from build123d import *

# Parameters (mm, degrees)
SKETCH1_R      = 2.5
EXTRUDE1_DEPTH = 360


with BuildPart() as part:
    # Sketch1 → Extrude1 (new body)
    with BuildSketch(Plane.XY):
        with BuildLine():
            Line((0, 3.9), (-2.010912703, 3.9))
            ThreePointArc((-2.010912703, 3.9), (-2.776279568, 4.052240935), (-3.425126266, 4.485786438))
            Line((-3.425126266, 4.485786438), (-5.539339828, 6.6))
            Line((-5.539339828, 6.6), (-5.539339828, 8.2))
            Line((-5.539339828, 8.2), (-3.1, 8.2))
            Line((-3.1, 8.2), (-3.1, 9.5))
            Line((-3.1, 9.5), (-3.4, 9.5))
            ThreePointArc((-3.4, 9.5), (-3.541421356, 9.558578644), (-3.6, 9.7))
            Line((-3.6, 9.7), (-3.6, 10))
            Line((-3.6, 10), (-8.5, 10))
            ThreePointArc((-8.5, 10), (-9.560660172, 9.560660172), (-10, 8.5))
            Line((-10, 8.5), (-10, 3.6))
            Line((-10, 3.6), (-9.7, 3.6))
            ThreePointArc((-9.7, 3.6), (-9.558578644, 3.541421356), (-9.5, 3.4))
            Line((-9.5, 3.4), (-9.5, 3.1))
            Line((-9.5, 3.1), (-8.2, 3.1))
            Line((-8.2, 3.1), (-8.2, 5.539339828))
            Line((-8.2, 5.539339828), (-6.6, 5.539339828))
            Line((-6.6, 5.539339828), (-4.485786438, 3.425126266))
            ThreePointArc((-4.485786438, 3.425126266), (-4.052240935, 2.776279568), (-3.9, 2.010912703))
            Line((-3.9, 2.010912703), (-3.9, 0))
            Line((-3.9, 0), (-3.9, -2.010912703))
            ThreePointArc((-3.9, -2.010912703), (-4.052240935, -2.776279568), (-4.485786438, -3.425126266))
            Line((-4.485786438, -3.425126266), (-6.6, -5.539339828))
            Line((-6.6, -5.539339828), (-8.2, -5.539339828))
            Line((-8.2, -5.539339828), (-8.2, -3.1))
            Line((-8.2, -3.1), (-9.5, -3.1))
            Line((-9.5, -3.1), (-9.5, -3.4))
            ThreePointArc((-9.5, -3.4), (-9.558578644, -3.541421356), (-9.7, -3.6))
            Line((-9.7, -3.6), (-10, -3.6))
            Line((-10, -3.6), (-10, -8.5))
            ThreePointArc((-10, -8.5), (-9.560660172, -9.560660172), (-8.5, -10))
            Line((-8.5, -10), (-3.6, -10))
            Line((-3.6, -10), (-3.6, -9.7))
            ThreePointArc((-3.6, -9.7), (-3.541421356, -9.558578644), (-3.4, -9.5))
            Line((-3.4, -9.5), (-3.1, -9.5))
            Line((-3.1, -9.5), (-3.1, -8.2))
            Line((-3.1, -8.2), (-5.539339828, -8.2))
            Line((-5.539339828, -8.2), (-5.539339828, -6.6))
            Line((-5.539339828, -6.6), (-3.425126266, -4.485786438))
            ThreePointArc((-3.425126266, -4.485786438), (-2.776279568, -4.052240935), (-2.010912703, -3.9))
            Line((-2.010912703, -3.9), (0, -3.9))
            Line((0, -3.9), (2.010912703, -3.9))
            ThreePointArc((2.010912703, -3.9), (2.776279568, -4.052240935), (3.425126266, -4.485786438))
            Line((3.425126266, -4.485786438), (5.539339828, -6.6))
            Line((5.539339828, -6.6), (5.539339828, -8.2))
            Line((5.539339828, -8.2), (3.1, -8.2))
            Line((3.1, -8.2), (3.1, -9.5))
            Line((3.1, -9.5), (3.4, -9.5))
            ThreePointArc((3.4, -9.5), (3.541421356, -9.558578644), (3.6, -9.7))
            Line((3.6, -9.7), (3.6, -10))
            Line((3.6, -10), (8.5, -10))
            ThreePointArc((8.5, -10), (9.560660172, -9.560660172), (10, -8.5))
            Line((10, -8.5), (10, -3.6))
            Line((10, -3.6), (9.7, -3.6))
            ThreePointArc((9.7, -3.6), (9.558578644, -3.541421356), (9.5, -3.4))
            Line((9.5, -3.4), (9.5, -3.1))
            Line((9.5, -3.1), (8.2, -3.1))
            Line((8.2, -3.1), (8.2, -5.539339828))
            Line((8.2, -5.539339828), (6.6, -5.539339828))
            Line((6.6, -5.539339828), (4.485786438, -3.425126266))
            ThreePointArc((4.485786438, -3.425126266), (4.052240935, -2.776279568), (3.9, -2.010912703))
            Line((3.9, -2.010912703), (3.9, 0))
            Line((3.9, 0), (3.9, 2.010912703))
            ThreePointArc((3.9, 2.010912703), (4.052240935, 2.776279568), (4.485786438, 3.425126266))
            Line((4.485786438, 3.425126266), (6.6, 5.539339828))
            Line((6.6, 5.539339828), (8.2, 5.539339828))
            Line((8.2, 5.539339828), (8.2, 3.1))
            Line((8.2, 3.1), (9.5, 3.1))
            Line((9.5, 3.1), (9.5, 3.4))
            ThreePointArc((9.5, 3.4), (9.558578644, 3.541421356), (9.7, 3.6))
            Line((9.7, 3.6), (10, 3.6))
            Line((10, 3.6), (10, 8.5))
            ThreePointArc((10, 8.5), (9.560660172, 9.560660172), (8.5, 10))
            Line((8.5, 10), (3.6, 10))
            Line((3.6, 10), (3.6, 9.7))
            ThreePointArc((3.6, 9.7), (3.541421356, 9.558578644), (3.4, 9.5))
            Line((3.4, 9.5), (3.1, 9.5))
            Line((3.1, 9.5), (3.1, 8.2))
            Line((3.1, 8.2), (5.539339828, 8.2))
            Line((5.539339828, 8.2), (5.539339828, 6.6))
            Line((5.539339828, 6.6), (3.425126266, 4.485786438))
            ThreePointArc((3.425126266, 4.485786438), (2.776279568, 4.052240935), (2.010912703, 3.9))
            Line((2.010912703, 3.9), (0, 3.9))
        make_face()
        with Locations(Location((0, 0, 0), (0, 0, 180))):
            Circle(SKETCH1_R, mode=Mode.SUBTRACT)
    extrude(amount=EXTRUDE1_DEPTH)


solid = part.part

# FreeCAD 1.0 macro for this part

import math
import FreeCAD as App
import Part
import Sketcher

V = App.Vector

doc = App.newDocument("Part")
body = doc.addObject("PartDesign::Body", "Body")

sketch1 = doc.addObject("Sketcher::SketchObject", "Sketch")
body.addObject(sketch1)
sketch1.AttachmentSupport = (doc.XY_Plane, [""])
sketch1.MapMode = "FlatFace"
sketch1.addGeometry([
    Part.ArcOfCircle(Part.Circle(V(-2.010913, 5.9, 0), V(0, 0, 1), 2), math.radians(-135), math.radians(-90)),
    Part.LineSegment(V(-3.425126, 4.485786, 0), V(-5.53934, 6.6, 0)),
    Part.LineSegment(V(-5.53934, 6.6, 0), V(-5.53934, 8.2, 0)),
    Part.LineSegment(V(-5.53934, 8.2, 0), V(-3.1, 8.2, 0)),
    Part.LineSegment(V(-3.1, 8.2, 0), V(-3.1, 9.5, 0)),
    Part.LineSegment(V(-3.1, 9.5, 0), V(-3.4, 9.5, 0)),
    Part.ArcOfCircle(Part.Circle(V(-3.4, 9.7, 0), V(0, 0, 1), 0.2), math.radians(-180), math.radians(-90)),
    Part.LineSegment(V(-3.6, 9.7, 0), V(-3.6, 10, 0)),
    Part.LineSegment(V(-3.6, 10, 0), V(-8.5, 10, 0)),
    Part.ArcOfCircle(Part.Circle(V(-8.5, 8.5, 0), V(0, 0, 1), 1.5), math.radians(90), math.radians(180)),
    Part.LineSegment(V(-10, 8.5, 0), V(-10, 3.6, 0)),
    Part.LineSegment(V(-10, 3.6, 0), V(-9.7, 3.6, 0)),
    Part.ArcOfCircle(Part.Circle(V(-9.7, 3.4, 0), V(0, 0, 1), 0.2), math.radians(0), math.radians(90)),
    Part.LineSegment(V(-9.5, 3.4, 0), V(-9.5, 3.1, 0)),
    Part.LineSegment(V(-9.5, 3.1, 0), V(-8.2, 3.1, 0)),
    Part.LineSegment(V(-8.2, 3.1, 0), V(-8.2, 5.53934, 0)),
    Part.LineSegment(V(-8.2, 5.53934, 0), V(-6.6, 5.53934, 0)),
    Part.LineSegment(V(-6.6, 5.53934, 0), V(-4.485786, 3.425126, 0)),
    Part.ArcOfCircle(Part.Circle(V(-5.9, 2.010913, 0), V(0, 0, 1), 2), math.radians(0), math.radians(45)),
    Part.LineSegment(V(-3.9, 2.010913, 0), V(-3.9, -2.010913, 0)),
    Part.ArcOfCircle(Part.Circle(V(-5.9, -2.010913, 0), V(0, 0, 1), 2), math.radians(-45), math.radians(0)),
    Part.LineSegment(V(-4.485786, -3.425126, 0), V(-6.6, -5.53934, 0)),
    Part.LineSegment(V(-6.6, -5.53934, 0), V(-8.2, -5.53934, 0)),
    Part.LineSegment(V(-8.2, -5.53934, 0), V(-8.2, -3.1, 0)),
    Part.LineSegment(V(-8.2, -3.1, 0), V(-9.5, -3.1, 0)),
    Part.LineSegment(V(-9.5, -3.1, 0), V(-9.5, -3.4, 0)),
    Part.ArcOfCircle(Part.Circle(V(-9.7, -3.4, 0), V(0, 0, 1), 0.2), math.radians(-90), math.radians(0)),
    Part.LineSegment(V(-9.7, -3.6, 0), V(-10, -3.6, 0)),
    Part.LineSegment(V(-10, -3.6, 0), V(-10, -8.5, 0)),
    Part.ArcOfCircle(Part.Circle(V(-8.5, -8.5, 0), V(0, 0, 1), 1.5), math.radians(180), math.radians(270)),
    Part.LineSegment(V(-8.5, -10, 0), V(-3.6, -10, 0)),
    Part.LineSegment(V(-3.6, -10, 0), V(-3.6, -9.7, 0)),
    Part.ArcOfCircle(Part.Circle(V(-3.4, -9.7, 0), V(0, 0, 1), 0.2), math.radians(90), math.radians(180)),
    Part.LineSegment(V(-3.4, -9.5, 0), V(-3.1, -9.5, 0)),
    Part.LineSegment(V(-3.1, -9.5, 0), V(-3.1, -8.2, 0)),
    Part.LineSegment(V(-3.1, -8.2, 0), V(-5.53934, -8.2, 0)),
    Part.LineSegment(V(-5.53934, -8.2, 0), V(-5.53934, -6.6, 0)),
    Part.LineSegment(V(-5.53934, -6.6, 0), V(-3.425126, -4.485786, 0)),
    Part.ArcOfCircle(Part.Circle(V(-2.010913, -5.9, 0), V(0, 0, 1), 2), math.radians(90), math.radians(135)),
    Part.LineSegment(V(-2.010913, -3.9, 0), V(2.010913, -3.9, 0)),
    Part.ArcOfCircle(Part.Circle(V(2.010913, -5.9, 0), V(0, 0, 1), 2), math.radians(45), math.radians(90)),
    Part.LineSegment(V(3.425126, -4.485786, 0), V(5.53934, -6.6, 0)),
    Part.LineSegment(V(5.53934, -6.6, 0), V(5.53934, -8.2, 0)),
    Part.LineSegment(V(5.53934, -8.2, 0), V(3.1, -8.2, 0)),
    Part.LineSegment(V(3.1, -8.2, 0), V(3.1, -9.5, 0)),
    Part.LineSegment(V(3.1, -9.5, 0), V(3.4, -9.5, 0)),
    Part.ArcOfCircle(Part.Circle(V(3.4, -9.7, 0), V(0, 0, 1), 0.2), math.radians(0), math.radians(90)),
    Part.LineSegment(V(3.6, -9.7, 0), V(3.6, -10, 0)),
    Part.LineSegment(V(3.6, -10, 0), V(8.5, -10, 0)),
    Part.ArcOfCircle(Part.Circle(V(8.5, -8.5, 0), V(0, 0, 1), 1.5), math.radians(-90), math.radians(0)),
    Part.LineSegment(V(10, -8.5, 0), V(10, -3.6, 0)),
    Part.LineSegment(V(10, -3.6, 0), V(9.7, -3.6, 0)),
    Part.ArcOfCircle(Part.Circle(V(9.7, -3.4, 0), V(0, 0, 1), 0.2), math.radians(-180), math.radians(-90)),
    Part.LineSegment(V(9.5, -3.4, 0), V(9.5, -3.1, 0)),
    Part.LineSegment(V(9.5, -3.1, 0), V(8.2, -3.1, 0)),
    Part.LineSegment(V(8.2, -3.1, 0), V(8.2, -5.53934, 0)),
    Part.LineSegment(V(8.2, -5.53934, 0), V(6.6, -5.53934, 0)),
    Part.LineSegment(V(6.6, -5.53934, 0), V(4.485786, -3.425126, 0)),
    Part.ArcOfCircle(Part.Circle(V(5.9, -2.010913, 0), V(0, 0, 1), 2), math.radians(180), math.radians(225)),
    Part.LineSegment(V(3.9, -2.010913, 0), V(3.9, 2.010913, 0)),
    Part.ArcOfCircle(Part.Circle(V(5.9, 2.010913, 0), V(0, 0, 1), 2), math.radians(135), math.radians(180)),
    Part.LineSegment(V(4.485786, 3.425126, 0), V(6.6, 5.53934, 0)),
    Part.LineSegment(V(6.6, 5.53934, 0), V(8.2, 5.53934, 0)),
    Part.LineSegment(V(8.2, 5.53934, 0), V(8.2, 3.1, 0)),
    Part.LineSegment(V(8.2, 3.1, 0), V(9.5, 3.1, 0)),
    Part.LineSegment(V(9.5, 3.1, 0), V(9.5, 3.4, 0)),
    Part.ArcOfCircle(Part.Circle(V(9.7, 3.4, 0), V(0, 0, 1), 0.2), math.radians(90), math.radians(180)),
    Part.LineSegment(V(9.7, 3.6, 0), V(10, 3.6, 0)),
    Part.LineSegment(V(10, 3.6, 0), V(10, 8.5, 0)),
    Part.ArcOfCircle(Part.Circle(V(8.5, 8.5, 0), V(0, 0, 1), 1.5), math.radians(0), math.radians(90)),
    Part.LineSegment(V(8.5, 10, 0), V(3.6, 10, 0)),
    Part.LineSegment(V(3.6, 10, 0), V(3.6, 9.7, 0)),
    Part.ArcOfCircle(Part.Circle(V(3.4, 9.7, 0), V(0, 0, 1), 0.2), math.radians(-90), math.radians(0)),
    Part.LineSegment(V(3.4, 9.5, 0), V(3.1, 9.5, 0)),
    Part.LineSegment(V(3.1, 9.5, 0), V(3.1, 8.2, 0)),
    Part.LineSegment(V(3.1, 8.2, 0), V(5.53934, 8.2, 0)),
    Part.LineSegment(V(5.53934, 8.2, 0), V(5.53934, 6.6, 0)),
    Part.LineSegment(V(5.53934, 6.6, 0), V(3.425126, 4.485786, 0)),
    Part.ArcOfCircle(Part.Circle(V(2.010913, 5.9, 0), V(0, 0, 1), 2), math.radians(-90), math.radians(-45)),
    Part.LineSegment(V(2.010913, 3.9, 0), V(-2.010913, 3.9, 0)),
    Part.Circle(V(0, 0, 0), V(0, 0, 1), 2.5),
], False)
sketch1.addConstraint([
    Sketcher.Constraint("Tangent", 0, 1, 1, 1),
    Sketcher.Constraint("Coincident", 1, 2, 2, 1),
    Sketcher.Constraint("Coincident", 2, 2, 3, 1),
    Sketcher.Constraint("Coincident", 3, 2, 4, 1),
    Sketcher.Constraint("Coincident", 4, 2, 5, 1),
    Sketcher.Constraint("Tangent", 5, 2, 6, 2),
    Sketcher.Constraint("Tangent", 6, 1, 7, 1),
    Sketcher.Constraint("Coincident", 7, 2, 8, 1),
    Sketcher.Constraint("Tangent", 8, 2, 9, 1),
    Sketcher.Constraint("Tangent", 9, 2, 10, 1),
    Sketcher.Constraint("Coincident", 10, 2, 11, 1),
    Sketcher.Constraint("Tangent", 11, 2, 12, 2),
    Sketcher.Constraint("Tangent", 12, 1, 13, 1),
    Sketcher.Constraint("Coincident", 13, 2, 14, 1),
    Sketcher.Constraint("Coincident", 14, 2, 15, 1),
    Sketcher.Constraint("Coincident", 15, 2, 16, 1),
    Sketcher.Constraint("Coincident", 16, 2, 17, 1),
    Sketcher.Constraint("Tangent", 17, 2, 18, 2),
    Sketcher.Constraint("Tangent", 18, 1, 19, 1),
    Sketcher.Constraint("Tangent", 19, 2, 20, 2),
    Sketcher.Constraint("Tangent", 20, 1, 21, 1),
    Sketcher.Constraint("Coincident", 21, 2, 22, 1),
    Sketcher.Constraint("Coincident", 22, 2, 23, 1),
    Sketcher.Constraint("Coincident", 23, 2, 24, 1),
    Sketcher.Constraint("Coincident", 24, 2, 25, 1),
    Sketcher.Constraint("Tangent", 25, 2, 26, 2),
    Sketcher.Constraint("Tangent", 26, 1, 27, 1),
    Sketcher.Constraint("Coincident", 27, 2, 28, 1),
    Sketcher.Constraint("Tangent", 28, 2, 29, 1),
    Sketcher.Constraint("Tangent", 29, 2, 30, 1),
    Sketcher.Constraint("Coincident", 30, 2, 31, 1),
    Sketcher.Constraint("Tangent", 31, 2, 32, 2),
    Sketcher.Constraint("Tangent", 32, 1, 33, 1),
    Sketcher.Constraint("Coincident", 33, 2, 34, 1),
    Sketcher.Constraint("Coincident", 34, 2, 35, 1),
    Sketcher.Constraint("Coincident", 35, 2, 36, 1),
    Sketcher.Constraint("Coincident", 36, 2, 37, 1),
    Sketcher.Constraint("Tangent", 37, 2, 38, 2),
    Sketcher.Constraint("Tangent", 38, 1, 39, 1),
    Sketcher.Constraint("Tangent", 39, 2, 40, 2),
    Sketcher.Constraint("Tangent", 40, 1, 41, 1),
    Sketcher.Constraint("Coincident", 41, 2, 42, 1),
    Sketcher.Constraint("Coincident", 42, 2, 43, 1),
    Sketcher.Constraint("Coincident", 43, 2, 44, 1),
    Sketcher.Constraint("Coincident", 44, 2, 45, 1),
    Sketcher.Constraint("Tangent", 45, 2, 46, 2),
    Sketcher.Constraint("Tangent", 46, 1, 47, 1),
    Sketcher.Constraint("Coincident", 47, 2, 48, 1),
    Sketcher.Constraint("Tangent", 48, 2, 49, 1),
    Sketcher.Constraint("Tangent", 49, 2, 50, 1),
    Sketcher.Constraint("Coincident", 50, 2, 51, 1),
    Sketcher.Constraint("Tangent", 51, 2, 52, 2),
    Sketcher.Constraint("Tangent", 52, 1, 53, 1),
    Sketcher.Constraint("Coincident", 53, 2, 54, 1),
    Sketcher.Constraint("Coincident", 54, 2, 55, 1),
    Sketcher.Constraint("Coincident", 55, 2, 56, 1),
    Sketcher.Constraint("Coincident", 56, 2, 57, 1),
    Sketcher.Constraint("Tangent", 57, 2, 58, 2),
    Sketcher.Constraint("Tangent", 58, 1, 59, 1),
    Sketcher.Constraint("Tangent", 59, 2, 60, 2),
    Sketcher.Constraint("Tangent", 60, 1, 61, 1),
    Sketcher.Constraint("Coincident", 61, 2, 62, 1),
    Sketcher.Constraint("Coincident", 62, 2, 63, 1),
    Sketcher.Constraint("Coincident", 63, 2, 64, 1),
    Sketcher.Constraint("Coincident", 64, 2, 65, 1),
    Sketcher.Constraint("Tangent", 65, 2, 66, 2),
    Sketcher.Constraint("Tangent", 66, 1, 67, 1),
    Sketcher.Constraint("Coincident", 67, 2, 68, 1),
    Sketcher.Constraint("Tangent", 68, 2, 69, 1),
    Sketcher.Constraint("Tangent", 69, 2, 70, 1),
    Sketcher.Constraint("Coincident", 70, 2, 71, 1),
    Sketcher.Constraint("Tangent", 71, 2, 72, 2),
    Sketcher.Constraint("Tangent", 72, 1, 73, 1),
    Sketcher.Constraint("Coincident", 73, 2, 74, 1),
    Sketcher.Constraint("Coincident", 74, 2, 75, 1),
    Sketcher.Constraint("Coincident", 75, 2, 76, 1),
    Sketcher.Constraint("Coincident", 76, 2, 77, 1),
    Sketcher.Constraint("Tangent", 77, 2, 78, 2),
    Sketcher.Constraint("Tangent", 78, 1, 79, 1),
    Sketcher.Constraint("Tangent", 79, 2, 0, 2),
    Sketcher.Constraint("Vertical", 2),
    Sketcher.Constraint("Horizontal", 3),
    Sketcher.Constraint("Vertical", 4),
    Sketcher.Constraint("Horizontal", 5),
    Sketcher.Constraint("Vertical", 7),
    Sketcher.Constraint("Horizontal", 8),
    Sketcher.Constraint("Vertical", 10),
    Sketcher.Constraint("Horizontal", 11),
    Sketcher.Constraint("Vertical", 13),
    Sketcher.Constraint("Horizontal", 14),
    Sketcher.Constraint("Vertical", 15),
    Sketcher.Constraint("Horizontal", 16),
    Sketcher.Constraint("Vertical", 19),
    Sketcher.Constraint("Horizontal", 22),
    Sketcher.Constraint("Vertical", 23),
    Sketcher.Constraint("Horizontal", 24),
    Sketcher.Constraint("Vertical", 25),
    Sketcher.Constraint("Horizontal", 27),
    Sketcher.Constraint("Vertical", 28),
    Sketcher.Constraint("Horizontal", 30),
    Sketcher.Constraint("Vertical", 31),
    Sketcher.Constraint("Horizontal", 33),
    Sketcher.Constraint("Vertical", 34),
    Sketcher.Constraint("Horizontal", 35),
    Sketcher.Constraint("Vertical", 36),
    Sketcher.Constraint("Horizontal", 39),
    Sketcher.Constraint("Vertical", 42),
    Sketcher.Constraint("Horizontal", 43),
    Sketcher.Constraint("Vertical", 44),
    Sketcher.Constraint("Horizontal", 45),
    Sketcher.Constraint("Vertical", 47),
    Sketcher.Constraint("Horizontal", 48),
    Sketcher.Constraint("Vertical", 50),
    Sketcher.Constraint("Horizontal", 51),
    Sketcher.Constraint("Vertical", 53),
    Sketcher.Constraint("Horizontal", 54),
    Sketcher.Constraint("Vertical", 55),
    Sketcher.Constraint("Horizontal", 56),
    Sketcher.Constraint("Vertical", 59),
    Sketcher.Constraint("Horizontal", 62),
    Sketcher.Constraint("Vertical", 63),
    Sketcher.Constraint("Horizontal", 64),
    Sketcher.Constraint("Vertical", 65),
    Sketcher.Constraint("Horizontal", 67),
    Sketcher.Constraint("Vertical", 68),
    Sketcher.Constraint("Horizontal", 70),
    Sketcher.Constraint("Vertical", 71),
    Sketcher.Constraint("Horizontal", 73),
    Sketcher.Constraint("Vertical", 74),
    Sketcher.Constraint("Horizontal", 75),
    Sketcher.Constraint("Vertical", 76),
    Sketcher.Constraint("Horizontal", 79),
    Sketcher.Constraint("Coincident", 80, 3, -1, 1),
    Sketcher.Constraint("Equal", 6, 12),
    Sketcher.Constraint("Equal", 0, 18),
    Sketcher.Constraint("Equal", 18, 20),
    Sketcher.Constraint("Equal", 12, 26),
    Sketcher.Constraint("Equal", 9, 29),
    Sketcher.Constraint("Equal", 26, 32),
    Sketcher.Constraint("Equal", 20, 38),
    Sketcher.Constraint("Equal", 38, 40),
    Sketcher.Constraint("Equal", 32, 46),
    Sketcher.Constraint("Equal", 29, 49),
    Sketcher.Constraint("Equal", 46, 52),
    Sketcher.Constraint("Equal", 40, 58),
    Sketcher.Constraint("Equal", 58, 60),
    Sketcher.Constraint("Equal", 52, 66),
    Sketcher.Constraint("Equal", 49, 69),
    Sketcher.Constraint("Equal", 66, 72),
    Sketcher.Constraint("Equal", 60, 78),
    Sketcher.Constraint("Symmetric", 0, 3, 40, 3, -1, 1),
    Sketcher.Constraint("Symmetric", 6, 3, 46, 3, -1, 1),
    Sketcher.Constraint("Symmetric", 9, 3, 49, 3, -1, 1),
    Sketcher.Constraint("Symmetric", 12, 3, 52, 3, -1, 1),
    Sketcher.Constraint("Symmetric", 18, 3, 58, 3, -1, 1),
    Sketcher.Constraint("Symmetric", 26, 3, 66, 3, -1, 1),
    Sketcher.Constraint("Symmetric", 29, 3, 69, 3, -1, 1),
    Sketcher.Constraint("Symmetric", 32, 3, 72, 3, -1, 1),
    Sketcher.Constraint("Symmetric", 1, 2, 41, 2, -1, 1),
    Sketcher.Constraint("Symmetric", 3, 2, 43, 2, -1, 1),
    Sketcher.Constraint("Symmetric", 14, 2, 54, 2, -1, 1),
    Sketcher.Constraint("Symmetric", 16, 2, 56, 2, -1, 1),
    Sketcher.Constraint("Symmetric", 20, 1, 60, 1, -1, 1),
    Sketcher.Constraint("Symmetric", 22, 2, 62, 2, -1, 1),
    Sketcher.Constraint("Symmetric", 34, 2, 74, 2, -1, 1),
    Sketcher.Constraint("Symmetric", 36, 2, 76, 2, -1, 1),
    Sketcher.Constraint("Symmetric", 32, 3, 46, 3, -2),
    Sketcher.Constraint("Symmetric", 29, 3, 49, 3, -2),
    Sketcher.Constraint("Symmetric", 26, 3, 52, 3, -2),
    Sketcher.Constraint("Symmetric", 37, 2, 40, 1, -2),
    Sketcher.Constraint("Symmetric", 35, 2, 42, 2, -2),
    Sketcher.Constraint("Symmetric", 23, 2, 54, 2, -2),
    Sketcher.Constraint("Symmetric", 21, 2, 56, 2, -2),
    Sketcher.Constraint("Parallel", 1, 17),
    Sketcher.Constraint("Perpendicular", 17, 21),
    Sketcher.Constraint("Parallel", 21, 37),
    Sketcher.Constraint("Parallel", 61, 77),
    Sketcher.Constraint("Horizontal", 14, 2, 63, 2),
    Sketcher.Constraint("Vertical", 4, 2, 33, 2),
    Sketcher.Constraint("Equal", 5, 11),
    Sketcher.Constraint("Equal", 62, 2),
    Sketcher.Constraint("Equal", 64, 4),
    Sketcher.Constraint("Equal", 73, 7),
    Sketcher.Constraint("Equal", 70, 10),
    Sketcher.Constraint("Equal", 7, 13),
    Sketcher.Constraint("Equal", 75, 15),
    Sketcher.Constraint("Equal", 79, 19),
    Sketcher.Constraint("Equal", 1, 17),
    Sketcher.Constraint("Diameter", 80, 5.0),
    Sketcher.Constraint("Radius", 0, 2.0),
    Sketcher.Constraint("Radius", 6, 0.2),
    Sketcher.Constraint("Radius", 9, 1.5),
    Sketcher.Constraint("DistanceX", 5, 2, 5, 1, 0.3),
    Sketcher.Constraint("DistanceX", 8, 2, 8, 1, 4.9),
    Sketcher.Constraint("DistanceX", 14, 1, 14, 2, 1.3),
    Sketcher.Constraint("DistanceX", 16, 1, 16, 2, 1.6),
    Sketcher.Constraint("DistanceY", -1, 1, 7, 2, 10.0),
    Sketcher.Constraint("DistanceY", -1, 1, 0, 3, 5.9),
    Sketcher.Constraint("DistanceX", 3, 1, 3, 2, 2.43934),
])
pad1 = doc.addObject("PartDesign::Pad", "Pad")
body.addObject(pad1)
pad1.Profile = sketch1
pad1.Length = 360

doc.recompute()
